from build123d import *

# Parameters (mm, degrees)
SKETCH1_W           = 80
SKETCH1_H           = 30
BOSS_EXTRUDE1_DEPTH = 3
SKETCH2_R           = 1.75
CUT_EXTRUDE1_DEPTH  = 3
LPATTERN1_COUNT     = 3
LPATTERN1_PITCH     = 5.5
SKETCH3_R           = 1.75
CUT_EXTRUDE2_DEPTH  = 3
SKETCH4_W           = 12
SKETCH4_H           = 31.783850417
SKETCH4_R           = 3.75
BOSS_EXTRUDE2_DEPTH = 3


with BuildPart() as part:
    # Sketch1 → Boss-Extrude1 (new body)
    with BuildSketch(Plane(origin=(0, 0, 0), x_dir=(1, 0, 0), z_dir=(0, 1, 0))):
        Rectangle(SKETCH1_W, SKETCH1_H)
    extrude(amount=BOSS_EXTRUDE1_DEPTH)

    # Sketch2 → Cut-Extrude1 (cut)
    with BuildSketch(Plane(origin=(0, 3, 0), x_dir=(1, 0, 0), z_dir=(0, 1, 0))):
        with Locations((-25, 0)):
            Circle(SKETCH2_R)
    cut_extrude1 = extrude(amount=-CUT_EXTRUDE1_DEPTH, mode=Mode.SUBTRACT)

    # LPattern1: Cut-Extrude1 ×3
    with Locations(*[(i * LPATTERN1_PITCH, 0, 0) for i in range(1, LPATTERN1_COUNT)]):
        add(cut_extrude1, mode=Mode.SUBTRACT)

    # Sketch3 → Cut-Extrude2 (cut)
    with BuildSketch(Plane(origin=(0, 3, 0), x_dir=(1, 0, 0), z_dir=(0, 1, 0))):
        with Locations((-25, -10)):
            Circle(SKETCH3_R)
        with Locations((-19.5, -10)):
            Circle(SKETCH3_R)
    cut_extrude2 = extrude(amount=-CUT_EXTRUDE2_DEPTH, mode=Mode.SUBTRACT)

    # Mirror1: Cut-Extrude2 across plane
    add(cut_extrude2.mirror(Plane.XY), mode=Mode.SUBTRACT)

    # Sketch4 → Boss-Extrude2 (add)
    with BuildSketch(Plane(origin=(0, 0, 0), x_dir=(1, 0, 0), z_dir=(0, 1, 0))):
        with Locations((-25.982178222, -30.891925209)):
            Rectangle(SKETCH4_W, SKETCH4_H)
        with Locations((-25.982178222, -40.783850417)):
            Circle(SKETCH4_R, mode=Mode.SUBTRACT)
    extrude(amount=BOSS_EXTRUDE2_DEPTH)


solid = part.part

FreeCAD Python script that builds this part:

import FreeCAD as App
import Part
import Sketcher

V = App.Vector
Q = App.Units.Quantity

doc = App.newDocument("Part")
body = doc.addObject("PartDesign::Body", "Body")

sketch1 = body.newObject("Sketcher::SketchObject", "Sketch")
sketch1.AttachmentSupport = (doc.getObject("XZ_Plane"), [""])
sketch1.MapMode = "FlatFace"
sketch1.addGeometry(Part.LineSegment(V(-40, -15, 0), V(-40, 15, 0)), False)
sketch1.addGeometry(Part.LineSegment(V(-40, 15, 0), V(40, 15, 0)), False)
sketch1.addGeometry(Part.LineSegment(V(40, 15, 0), V(40, -15, 0)), False)
sketch1.addGeometry(Part.LineSegment(V(40, -15, 0), V(-40, -15, 0)), False)
sketch1.addConstraint(Sketcher.Constraint("Coincident", 0, 2, 1, 1))
sketch1.addConstraint(Sketcher.Constraint("Coincident", 1, 2, 2, 1))
sketch1.addConstraint(Sketcher.Constraint("Coincident", 2, 2, 3, 1))
sketch1.addConstraint(Sketcher.Constraint("Coincident", 3, 2, 0, 1))
sketch1.addConstraint(Sketcher.Constraint("Vertical", 0))
sketch1.addConstraint(Sketcher.Constraint("Horizontal", 1))
sketch1.addConstraint(Sketcher.Constraint("Vertical", 2))
sketch1.addConstraint(Sketcher.Constraint("Horizontal", 3))
sketch1.addConstraint(Sketcher.Constraint("Symmetric", 0, 2, 2, 2, -1, 1))
sketch1.addConstraint(Sketcher.Constraint("DistanceX", 1, 1, 1, 2, Q("80 mm")))
sketch1.addConstraint(Sketcher.Constraint("DistanceY", 0, 1, 0, 2, Q("30 mm")))
pad1 = body.newObject("PartDesign::Pad", "Pad")
pad1.Profile = sketch1
pad1.Length = 3
pad1.Reversed = True

sketch2 = body.newObject("Sketcher::SketchObject", "Sketch001")
sketch2.AttachmentSupport = (doc.getObject("XZ_Plane"), [""])
sketch2.MapMode = "FlatFace"
sketch2.AttachmentOffset = App.Placement(V(0, 0, -3), App.Rotation())
sketch2.addGeometry(Part.Circle(V(-25, 0, 0), V(0, 0, 1), 1.75), False)
sketch2.addConstraint(Sketcher.Constraint("PointOnObject", 0, 3, -1))
sketch2.addConstraint(Sketcher.Constraint("Diameter", 0, Q("3.5 mm")))
sketch2.addConstraint(Sketcher.Constraint("DistanceX", 0, 3, -1, 1, Q("25 mm")))
pocket1 = body.newObject("PartDesign::Pocket", "Pocket")
pocket1.Profile = sketch2
pocket1.Length = 3
pocket1.Reversed = True
doc.recompute()

linearpattern = body.newObject("PartDesign::LinearPattern", "LinearPattern")
linearpattern.Originals = [pocket1]
linearpattern.Direction = (doc.getObject("X_Axis"), [""])
linearpattern.Mode = "offset"
linearpattern.Offset = 5.5
linearpattern.Occurrences = 3
body.Tip = linearpattern

sketch3 = body.newObject("Sketcher::SketchObject", "Sketch002")
sketch3.AttachmentSupport = (doc.getObject("XZ_Plane"), [""])
sketch3.MapMode = "FlatFace"
sketch3.AttachmentOffset = App.Placement(V(0, 0, -3), App.Rotation())
sketch3.addGeometry(Part.Circle(V(-25, 10, 0), V(0, 0, 1), 1.75), False)
sketch3.addGeometry(Part.Circle(V(-19.5, 10, 0), V(0, 0, 1), 1.75), False)
sketch3.addConstraint(Sketcher.Constraint("Equal", 0, 1))
sketch3.addConstraint(Sketcher.Constraint("Horizontal", 0, 3, 1, 3))
sketch3.addConstraint(Sketcher.Constraint("Diameter", 0, Q("3.5 mm")))
sketch3.addConstraint(Sketcher.Constraint("DistanceX", 0, 3, -1, 1, Q("25 mm")))
sketch3.addConstraint(Sketcher.Constraint("DistanceY", -1, 1, 0, 3, Q("10 mm")))
sketch3.addConstraint(Sketcher.Constraint("DistanceX", 1, 3, -1, 1, Q("19.5 mm")))
pocket2 = body.newObject("PartDesign::Pocket", "Pocket001")
pocket2.Profile = sketch3
pocket2.Length = 3
pocket2.Reversed = True
doc.recompute()

mirrored = body.newObject("PartDesign::Mirrored", "Mirrored")
mirrored.Originals = [pocket2]
mirrored.MirrorPlane = (doc.getObject("XY_Plane"), [""])
body.Tip = mirrored

sketch4 = body.newObject("Sketcher::SketchObject", "Sketch003")
sketch4.AttachmentSupport = (doc.getObject("XZ_Plane"), [""])
sketch4.MapMode = "FlatFace"
sketch4.addGeometry(Part.LineSegment(V(-31.982178, 15, 0), V(-31.982178, 46.78385, 0)), False)
sketch4.addGeometry(Part.LineSegment(V(-31.982178, 46.78385, 0), V(-19.982178, 46.78385, 0)), False)
sketch4.addGeometry(Part.LineSegment(V(-19.982178, 46.78385, 0), V(-19.982178, 15, 0)), False)
sketch4.addGeometry(Part.LineSegment(V(-19.982178, 15, 0), V(-31.982178, 15, 0)), False)
sketch4.addGeometry(Part.Circle(V(-25.982178, 40.78385, 0), V(0, 0, 1), 3.75), False)
sketch4.addConstraint(Sketcher.Constraint("Coincident", 0, 2, 1, 1))
sketch4.addConstraint(Sketcher.Constraint("Coincident", 1, 2, 2, 1))
sketch4.addConstraint(Sketcher.Constraint("Coincident", 2, 2, 3, 1))
sketch4.addConstraint(Sketcher.Constraint("Coincident", 3, 2, 0, 1))
sketch4.addConstraint(Sketcher.Constraint("Vertical", 0))
sketch4.addConstraint(Sketcher.Constraint("Horizontal", 1))
sketch4.addConstraint(Sketcher.Constraint("Vertical", 2))
sketch4.addConstraint(Sketcher.Constraint("Horizontal", 3))
sketch4.addConstraint(Sketcher.Constraint("Diameter", 4, Q("7.5 mm")))
sketch4.addConstraint(Sketcher.Constraint("DistanceX", 1, 1, 1, 2, Q("12 mm")))
sketch4.addConstraint(Sketcher.Constraint("DistanceY", -1, 1, 2, 2, Q("15 mm")))
sketch4.addConstraint(Sketcher.Constraint("DistanceX", 0, 2, 4, 3, Q("6 mm")))
sketch4.addConstraint(Sketcher.Constraint("DistanceY", 4, 3, 0, 2, Q("6 mm")))
sketch4.addConstraint(Sketcher.Constraint("DistanceY", 0, 1, 0, 2, Q("31.78385 mm")))
sketch4.addConstraint(Sketcher.Constraint("DistanceX", 4, 3, -1, 1, Q("25.982178 mm")))
pad2 = body.newObject("PartDesign::Pad", "Pad001")
pad2.Profile = sketch4
pad2.Length = 3
pad2.Reversed = True

doc.recompute()
